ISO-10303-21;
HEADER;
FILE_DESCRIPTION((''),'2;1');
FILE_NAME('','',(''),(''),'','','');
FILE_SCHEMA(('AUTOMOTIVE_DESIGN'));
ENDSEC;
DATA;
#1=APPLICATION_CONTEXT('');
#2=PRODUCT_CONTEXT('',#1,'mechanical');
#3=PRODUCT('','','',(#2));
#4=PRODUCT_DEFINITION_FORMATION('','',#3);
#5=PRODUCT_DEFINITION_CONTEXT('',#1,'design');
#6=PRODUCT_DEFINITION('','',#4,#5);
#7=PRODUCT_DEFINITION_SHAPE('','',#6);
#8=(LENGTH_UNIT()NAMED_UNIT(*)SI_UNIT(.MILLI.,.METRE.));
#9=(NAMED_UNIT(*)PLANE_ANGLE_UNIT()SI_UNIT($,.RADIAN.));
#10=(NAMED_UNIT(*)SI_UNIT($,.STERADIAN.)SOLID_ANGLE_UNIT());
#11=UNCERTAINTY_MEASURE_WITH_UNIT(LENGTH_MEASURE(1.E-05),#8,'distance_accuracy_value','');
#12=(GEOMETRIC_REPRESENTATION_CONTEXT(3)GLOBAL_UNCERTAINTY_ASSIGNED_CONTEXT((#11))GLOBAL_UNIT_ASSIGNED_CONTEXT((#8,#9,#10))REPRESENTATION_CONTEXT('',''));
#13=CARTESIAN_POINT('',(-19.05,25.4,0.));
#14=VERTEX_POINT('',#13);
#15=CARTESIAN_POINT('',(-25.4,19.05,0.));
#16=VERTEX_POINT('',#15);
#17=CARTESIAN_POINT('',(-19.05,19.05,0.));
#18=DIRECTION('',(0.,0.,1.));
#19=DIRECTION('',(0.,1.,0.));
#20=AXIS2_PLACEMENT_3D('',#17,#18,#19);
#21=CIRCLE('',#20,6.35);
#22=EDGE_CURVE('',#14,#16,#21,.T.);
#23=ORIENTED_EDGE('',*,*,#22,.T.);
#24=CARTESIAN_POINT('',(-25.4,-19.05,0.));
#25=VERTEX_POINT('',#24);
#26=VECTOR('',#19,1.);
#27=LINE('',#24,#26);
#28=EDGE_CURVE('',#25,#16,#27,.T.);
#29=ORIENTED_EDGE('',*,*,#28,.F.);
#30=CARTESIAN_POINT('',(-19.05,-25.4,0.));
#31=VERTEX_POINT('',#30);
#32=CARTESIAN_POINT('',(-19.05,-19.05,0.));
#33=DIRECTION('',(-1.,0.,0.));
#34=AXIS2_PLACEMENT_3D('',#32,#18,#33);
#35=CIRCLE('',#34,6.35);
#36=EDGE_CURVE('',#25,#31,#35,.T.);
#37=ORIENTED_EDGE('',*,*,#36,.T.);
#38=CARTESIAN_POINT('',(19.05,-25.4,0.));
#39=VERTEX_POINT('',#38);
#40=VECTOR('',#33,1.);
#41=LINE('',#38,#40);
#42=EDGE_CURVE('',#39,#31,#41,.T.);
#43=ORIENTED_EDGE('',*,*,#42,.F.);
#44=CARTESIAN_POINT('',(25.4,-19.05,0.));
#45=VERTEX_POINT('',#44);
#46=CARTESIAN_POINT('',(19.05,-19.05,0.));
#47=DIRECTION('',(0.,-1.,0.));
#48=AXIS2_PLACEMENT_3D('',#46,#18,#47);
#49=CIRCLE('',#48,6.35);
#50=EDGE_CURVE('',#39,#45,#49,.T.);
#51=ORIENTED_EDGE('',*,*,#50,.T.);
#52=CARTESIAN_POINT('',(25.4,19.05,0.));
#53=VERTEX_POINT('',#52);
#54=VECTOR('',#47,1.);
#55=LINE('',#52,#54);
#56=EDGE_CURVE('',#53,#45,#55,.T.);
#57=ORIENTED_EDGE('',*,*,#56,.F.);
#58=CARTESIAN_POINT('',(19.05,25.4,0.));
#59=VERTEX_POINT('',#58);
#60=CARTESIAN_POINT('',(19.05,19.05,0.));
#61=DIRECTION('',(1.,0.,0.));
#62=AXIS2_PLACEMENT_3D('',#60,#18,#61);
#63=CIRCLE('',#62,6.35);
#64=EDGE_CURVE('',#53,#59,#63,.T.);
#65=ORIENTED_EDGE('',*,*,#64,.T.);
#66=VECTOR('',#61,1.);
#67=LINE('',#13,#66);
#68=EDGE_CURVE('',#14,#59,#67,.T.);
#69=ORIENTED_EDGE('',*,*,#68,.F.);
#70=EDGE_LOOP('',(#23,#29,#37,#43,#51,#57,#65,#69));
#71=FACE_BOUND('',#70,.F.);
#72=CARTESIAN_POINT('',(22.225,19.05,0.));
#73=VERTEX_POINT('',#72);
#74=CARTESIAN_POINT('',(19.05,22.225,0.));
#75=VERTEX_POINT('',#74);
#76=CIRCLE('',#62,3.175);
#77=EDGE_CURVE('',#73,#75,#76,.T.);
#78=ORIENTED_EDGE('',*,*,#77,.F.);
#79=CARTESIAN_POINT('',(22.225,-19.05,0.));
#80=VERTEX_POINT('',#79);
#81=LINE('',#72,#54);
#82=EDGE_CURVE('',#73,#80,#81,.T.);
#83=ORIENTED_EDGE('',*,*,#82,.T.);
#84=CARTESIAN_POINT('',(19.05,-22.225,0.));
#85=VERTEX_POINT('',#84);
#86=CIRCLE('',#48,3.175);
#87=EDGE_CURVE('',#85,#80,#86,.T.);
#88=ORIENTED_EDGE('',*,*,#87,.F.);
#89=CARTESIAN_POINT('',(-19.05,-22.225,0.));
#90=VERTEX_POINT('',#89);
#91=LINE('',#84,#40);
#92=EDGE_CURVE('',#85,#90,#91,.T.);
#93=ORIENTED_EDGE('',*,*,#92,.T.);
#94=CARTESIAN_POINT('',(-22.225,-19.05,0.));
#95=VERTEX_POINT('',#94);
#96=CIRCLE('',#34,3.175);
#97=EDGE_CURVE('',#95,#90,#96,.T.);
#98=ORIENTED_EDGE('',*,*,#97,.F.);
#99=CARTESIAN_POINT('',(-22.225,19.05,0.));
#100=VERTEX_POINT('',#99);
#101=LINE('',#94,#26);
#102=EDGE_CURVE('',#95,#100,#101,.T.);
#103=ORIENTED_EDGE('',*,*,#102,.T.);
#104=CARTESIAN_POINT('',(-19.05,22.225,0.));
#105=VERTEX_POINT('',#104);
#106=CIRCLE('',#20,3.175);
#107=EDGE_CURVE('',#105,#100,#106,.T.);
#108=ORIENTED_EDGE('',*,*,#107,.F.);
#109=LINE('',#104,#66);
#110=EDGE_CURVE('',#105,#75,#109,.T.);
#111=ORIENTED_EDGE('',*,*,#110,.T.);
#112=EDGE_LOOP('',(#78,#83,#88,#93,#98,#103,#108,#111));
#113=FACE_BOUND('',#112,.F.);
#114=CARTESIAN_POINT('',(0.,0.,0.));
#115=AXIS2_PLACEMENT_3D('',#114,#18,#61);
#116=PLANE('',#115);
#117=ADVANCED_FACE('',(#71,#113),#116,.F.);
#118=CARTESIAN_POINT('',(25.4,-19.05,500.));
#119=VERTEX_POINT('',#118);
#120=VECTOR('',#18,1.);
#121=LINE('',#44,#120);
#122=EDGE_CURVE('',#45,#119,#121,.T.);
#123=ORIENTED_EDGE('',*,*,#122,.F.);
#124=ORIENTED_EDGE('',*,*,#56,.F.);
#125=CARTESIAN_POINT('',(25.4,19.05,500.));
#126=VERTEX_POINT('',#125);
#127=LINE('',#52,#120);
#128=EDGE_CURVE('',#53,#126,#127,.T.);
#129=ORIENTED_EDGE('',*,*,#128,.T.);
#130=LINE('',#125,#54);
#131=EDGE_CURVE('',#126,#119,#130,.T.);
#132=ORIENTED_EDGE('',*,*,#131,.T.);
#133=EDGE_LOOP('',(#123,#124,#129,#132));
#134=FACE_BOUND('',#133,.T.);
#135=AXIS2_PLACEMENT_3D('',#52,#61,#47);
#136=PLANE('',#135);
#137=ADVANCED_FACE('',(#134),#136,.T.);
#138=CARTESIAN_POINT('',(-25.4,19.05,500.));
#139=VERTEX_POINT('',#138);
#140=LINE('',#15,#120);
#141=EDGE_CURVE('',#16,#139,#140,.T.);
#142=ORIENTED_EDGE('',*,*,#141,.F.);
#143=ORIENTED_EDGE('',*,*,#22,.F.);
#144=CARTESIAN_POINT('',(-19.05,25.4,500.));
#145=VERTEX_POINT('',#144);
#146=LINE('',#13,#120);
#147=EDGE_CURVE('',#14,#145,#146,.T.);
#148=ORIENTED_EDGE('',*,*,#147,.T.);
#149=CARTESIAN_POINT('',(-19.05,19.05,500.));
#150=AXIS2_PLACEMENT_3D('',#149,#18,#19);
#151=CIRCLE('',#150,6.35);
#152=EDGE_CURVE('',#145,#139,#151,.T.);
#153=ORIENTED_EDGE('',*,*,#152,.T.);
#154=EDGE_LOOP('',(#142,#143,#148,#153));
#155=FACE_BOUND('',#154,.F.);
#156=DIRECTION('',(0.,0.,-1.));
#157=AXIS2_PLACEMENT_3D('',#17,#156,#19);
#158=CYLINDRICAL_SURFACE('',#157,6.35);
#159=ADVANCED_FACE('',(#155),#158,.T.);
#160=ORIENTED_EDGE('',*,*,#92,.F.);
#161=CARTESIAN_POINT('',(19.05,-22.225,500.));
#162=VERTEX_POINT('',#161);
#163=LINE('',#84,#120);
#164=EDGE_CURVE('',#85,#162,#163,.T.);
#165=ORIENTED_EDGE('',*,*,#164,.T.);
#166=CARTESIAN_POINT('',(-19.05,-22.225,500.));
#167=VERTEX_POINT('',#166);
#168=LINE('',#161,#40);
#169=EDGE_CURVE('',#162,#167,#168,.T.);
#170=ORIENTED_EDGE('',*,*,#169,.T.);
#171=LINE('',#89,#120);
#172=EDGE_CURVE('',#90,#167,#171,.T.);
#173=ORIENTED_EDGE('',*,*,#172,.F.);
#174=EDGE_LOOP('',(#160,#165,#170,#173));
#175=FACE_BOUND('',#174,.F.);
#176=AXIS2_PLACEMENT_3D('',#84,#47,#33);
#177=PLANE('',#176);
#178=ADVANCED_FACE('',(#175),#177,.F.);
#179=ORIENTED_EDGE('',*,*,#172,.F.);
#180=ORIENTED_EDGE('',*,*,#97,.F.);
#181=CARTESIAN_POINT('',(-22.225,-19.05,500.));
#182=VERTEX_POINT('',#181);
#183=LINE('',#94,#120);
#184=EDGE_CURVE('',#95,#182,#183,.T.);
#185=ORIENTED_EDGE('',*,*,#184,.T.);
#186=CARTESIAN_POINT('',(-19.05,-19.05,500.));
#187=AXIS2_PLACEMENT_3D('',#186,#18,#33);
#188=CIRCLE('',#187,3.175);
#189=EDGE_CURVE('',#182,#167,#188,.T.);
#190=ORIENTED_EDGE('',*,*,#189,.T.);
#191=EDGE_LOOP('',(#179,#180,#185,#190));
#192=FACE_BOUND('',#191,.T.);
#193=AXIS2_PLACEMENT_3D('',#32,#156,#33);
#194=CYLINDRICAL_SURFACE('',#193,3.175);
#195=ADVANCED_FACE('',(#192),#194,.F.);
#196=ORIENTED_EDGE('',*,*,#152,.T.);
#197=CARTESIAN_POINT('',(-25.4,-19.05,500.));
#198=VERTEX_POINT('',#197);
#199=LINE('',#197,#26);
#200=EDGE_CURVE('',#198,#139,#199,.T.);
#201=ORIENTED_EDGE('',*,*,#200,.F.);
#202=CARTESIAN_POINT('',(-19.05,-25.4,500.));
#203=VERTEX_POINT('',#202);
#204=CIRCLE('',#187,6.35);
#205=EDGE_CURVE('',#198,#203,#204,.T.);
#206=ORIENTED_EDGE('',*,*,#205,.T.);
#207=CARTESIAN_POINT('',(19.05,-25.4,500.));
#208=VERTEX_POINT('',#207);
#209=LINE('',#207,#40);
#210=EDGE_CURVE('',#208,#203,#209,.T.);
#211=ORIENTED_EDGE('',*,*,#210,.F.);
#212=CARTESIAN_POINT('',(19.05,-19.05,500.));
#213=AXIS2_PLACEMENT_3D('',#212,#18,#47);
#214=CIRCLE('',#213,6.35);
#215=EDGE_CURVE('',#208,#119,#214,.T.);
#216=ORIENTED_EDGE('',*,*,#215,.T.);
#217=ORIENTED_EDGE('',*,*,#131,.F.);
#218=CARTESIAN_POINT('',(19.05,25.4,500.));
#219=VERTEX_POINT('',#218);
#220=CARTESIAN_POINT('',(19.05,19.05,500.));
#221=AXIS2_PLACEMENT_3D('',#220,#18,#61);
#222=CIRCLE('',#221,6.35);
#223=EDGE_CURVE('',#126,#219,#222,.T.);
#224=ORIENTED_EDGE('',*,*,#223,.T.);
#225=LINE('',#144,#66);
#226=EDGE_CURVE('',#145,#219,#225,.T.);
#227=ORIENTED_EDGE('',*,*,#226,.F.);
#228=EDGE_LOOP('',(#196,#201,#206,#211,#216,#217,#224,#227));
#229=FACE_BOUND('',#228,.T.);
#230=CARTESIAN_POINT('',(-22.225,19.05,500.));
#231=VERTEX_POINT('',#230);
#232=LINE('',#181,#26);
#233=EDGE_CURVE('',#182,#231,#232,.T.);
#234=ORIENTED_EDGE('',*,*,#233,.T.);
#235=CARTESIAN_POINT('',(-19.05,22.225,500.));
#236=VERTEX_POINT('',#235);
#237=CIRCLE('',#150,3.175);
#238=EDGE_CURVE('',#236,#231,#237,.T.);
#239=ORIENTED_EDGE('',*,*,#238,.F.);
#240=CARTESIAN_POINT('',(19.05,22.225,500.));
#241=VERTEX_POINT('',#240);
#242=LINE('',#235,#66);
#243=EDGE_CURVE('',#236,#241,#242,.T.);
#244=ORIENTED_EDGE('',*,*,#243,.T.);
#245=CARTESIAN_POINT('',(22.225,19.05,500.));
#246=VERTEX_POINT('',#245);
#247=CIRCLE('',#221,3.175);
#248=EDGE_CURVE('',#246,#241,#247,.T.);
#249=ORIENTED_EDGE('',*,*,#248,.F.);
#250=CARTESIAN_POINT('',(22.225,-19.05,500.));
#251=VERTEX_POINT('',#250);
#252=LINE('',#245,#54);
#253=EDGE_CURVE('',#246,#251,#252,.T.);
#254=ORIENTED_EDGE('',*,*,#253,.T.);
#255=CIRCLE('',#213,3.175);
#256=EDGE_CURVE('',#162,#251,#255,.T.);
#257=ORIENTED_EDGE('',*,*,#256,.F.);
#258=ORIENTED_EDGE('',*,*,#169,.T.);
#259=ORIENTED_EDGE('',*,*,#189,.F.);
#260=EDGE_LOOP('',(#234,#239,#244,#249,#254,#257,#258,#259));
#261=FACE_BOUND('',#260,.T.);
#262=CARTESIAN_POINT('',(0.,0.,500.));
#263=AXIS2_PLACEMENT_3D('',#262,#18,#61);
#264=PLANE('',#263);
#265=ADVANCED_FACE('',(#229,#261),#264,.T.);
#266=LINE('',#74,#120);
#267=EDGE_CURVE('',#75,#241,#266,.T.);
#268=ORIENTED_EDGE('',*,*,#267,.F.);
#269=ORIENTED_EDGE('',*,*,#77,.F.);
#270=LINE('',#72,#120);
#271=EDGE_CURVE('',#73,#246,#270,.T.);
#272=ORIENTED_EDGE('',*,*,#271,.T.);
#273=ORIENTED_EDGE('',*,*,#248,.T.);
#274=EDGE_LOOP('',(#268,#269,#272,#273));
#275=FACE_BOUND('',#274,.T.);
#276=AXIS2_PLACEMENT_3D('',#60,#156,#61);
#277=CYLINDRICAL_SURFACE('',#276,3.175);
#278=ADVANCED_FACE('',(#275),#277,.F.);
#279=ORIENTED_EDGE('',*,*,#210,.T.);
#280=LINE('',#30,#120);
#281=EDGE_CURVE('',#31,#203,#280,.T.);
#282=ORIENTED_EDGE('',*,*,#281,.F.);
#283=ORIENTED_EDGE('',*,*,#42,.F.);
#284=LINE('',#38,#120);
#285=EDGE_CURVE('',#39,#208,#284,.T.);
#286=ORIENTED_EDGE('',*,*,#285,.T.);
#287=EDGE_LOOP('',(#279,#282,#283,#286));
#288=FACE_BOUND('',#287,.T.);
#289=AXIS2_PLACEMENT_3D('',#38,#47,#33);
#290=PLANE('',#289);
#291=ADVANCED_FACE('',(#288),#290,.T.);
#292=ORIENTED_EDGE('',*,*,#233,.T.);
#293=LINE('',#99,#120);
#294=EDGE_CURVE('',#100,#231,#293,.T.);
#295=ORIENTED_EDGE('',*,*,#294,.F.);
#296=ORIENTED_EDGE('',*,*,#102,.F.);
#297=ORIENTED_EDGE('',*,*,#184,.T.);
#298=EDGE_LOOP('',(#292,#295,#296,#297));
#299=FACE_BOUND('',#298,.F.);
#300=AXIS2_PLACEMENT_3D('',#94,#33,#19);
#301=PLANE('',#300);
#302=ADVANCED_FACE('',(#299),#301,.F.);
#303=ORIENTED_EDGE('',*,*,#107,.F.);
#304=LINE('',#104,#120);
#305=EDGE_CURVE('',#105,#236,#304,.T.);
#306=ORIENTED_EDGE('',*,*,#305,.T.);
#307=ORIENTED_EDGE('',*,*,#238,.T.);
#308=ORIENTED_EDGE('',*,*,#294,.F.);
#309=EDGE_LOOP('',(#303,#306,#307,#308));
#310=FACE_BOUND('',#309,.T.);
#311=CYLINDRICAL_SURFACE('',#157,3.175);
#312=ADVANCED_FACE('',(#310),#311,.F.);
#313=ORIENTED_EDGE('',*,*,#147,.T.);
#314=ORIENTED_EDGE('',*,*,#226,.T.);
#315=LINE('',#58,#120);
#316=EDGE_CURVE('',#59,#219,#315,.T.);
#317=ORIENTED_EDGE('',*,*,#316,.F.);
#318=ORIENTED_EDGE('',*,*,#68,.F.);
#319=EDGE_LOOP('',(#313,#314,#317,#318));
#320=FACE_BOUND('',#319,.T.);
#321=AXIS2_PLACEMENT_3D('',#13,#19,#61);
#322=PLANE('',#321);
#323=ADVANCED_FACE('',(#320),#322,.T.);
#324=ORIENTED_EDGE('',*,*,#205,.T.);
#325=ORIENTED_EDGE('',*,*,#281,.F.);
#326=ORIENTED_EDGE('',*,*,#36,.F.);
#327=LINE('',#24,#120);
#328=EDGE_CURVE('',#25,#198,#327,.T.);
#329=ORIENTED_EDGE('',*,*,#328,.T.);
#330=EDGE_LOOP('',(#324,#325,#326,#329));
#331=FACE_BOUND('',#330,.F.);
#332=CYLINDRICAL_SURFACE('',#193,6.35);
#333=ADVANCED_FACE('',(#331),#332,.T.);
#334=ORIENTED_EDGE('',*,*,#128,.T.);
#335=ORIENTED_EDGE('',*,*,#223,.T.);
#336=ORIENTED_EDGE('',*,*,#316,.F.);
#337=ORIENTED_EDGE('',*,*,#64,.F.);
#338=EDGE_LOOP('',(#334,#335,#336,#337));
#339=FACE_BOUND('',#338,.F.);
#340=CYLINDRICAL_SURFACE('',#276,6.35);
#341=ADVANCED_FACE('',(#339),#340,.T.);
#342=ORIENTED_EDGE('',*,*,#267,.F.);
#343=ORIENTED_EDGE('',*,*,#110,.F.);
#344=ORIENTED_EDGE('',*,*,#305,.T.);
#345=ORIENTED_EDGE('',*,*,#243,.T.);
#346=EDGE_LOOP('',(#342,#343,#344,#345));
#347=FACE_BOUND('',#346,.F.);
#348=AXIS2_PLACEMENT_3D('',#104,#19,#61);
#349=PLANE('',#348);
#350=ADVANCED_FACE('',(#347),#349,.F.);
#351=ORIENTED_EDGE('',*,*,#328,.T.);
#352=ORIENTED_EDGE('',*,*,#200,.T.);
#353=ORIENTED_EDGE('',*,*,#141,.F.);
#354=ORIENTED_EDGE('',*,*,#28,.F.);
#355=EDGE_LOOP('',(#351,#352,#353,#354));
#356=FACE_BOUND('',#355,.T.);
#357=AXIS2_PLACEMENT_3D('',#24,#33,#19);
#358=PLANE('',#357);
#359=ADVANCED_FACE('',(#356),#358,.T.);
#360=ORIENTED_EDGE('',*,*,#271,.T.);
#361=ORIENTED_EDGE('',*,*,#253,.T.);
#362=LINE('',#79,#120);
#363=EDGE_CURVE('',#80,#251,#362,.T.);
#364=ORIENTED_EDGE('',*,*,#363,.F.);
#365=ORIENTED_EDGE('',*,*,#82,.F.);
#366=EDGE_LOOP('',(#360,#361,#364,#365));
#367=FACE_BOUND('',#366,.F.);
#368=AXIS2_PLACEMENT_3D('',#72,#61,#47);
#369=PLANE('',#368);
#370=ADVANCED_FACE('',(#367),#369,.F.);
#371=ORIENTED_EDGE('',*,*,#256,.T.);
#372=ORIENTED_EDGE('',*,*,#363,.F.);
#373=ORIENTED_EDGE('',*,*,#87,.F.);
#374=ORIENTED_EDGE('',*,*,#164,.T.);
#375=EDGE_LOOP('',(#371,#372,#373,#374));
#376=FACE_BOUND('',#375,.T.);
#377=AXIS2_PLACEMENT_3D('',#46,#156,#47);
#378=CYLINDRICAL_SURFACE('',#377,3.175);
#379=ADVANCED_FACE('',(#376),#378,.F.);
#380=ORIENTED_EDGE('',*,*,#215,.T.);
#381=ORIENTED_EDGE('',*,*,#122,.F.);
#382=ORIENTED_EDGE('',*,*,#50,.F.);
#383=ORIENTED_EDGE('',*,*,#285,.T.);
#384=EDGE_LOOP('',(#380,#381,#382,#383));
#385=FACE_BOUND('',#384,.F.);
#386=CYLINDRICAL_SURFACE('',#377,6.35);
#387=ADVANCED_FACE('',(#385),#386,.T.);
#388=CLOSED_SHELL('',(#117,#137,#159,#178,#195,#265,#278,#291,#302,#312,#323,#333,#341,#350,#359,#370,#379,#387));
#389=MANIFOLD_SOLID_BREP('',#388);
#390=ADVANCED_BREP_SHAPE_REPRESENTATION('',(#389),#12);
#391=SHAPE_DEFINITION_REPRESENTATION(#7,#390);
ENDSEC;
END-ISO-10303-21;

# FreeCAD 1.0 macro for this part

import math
import FreeCAD as App
import Part
import Sketcher

V = App.Vector
Q = App.Units.Quantity

doc = App.newDocument("Part")
body = doc.addObject("PartDesign::Body", "Body")

# Sketch on XY plane
sketch1 = body.newObject("Sketcher::SketchObject", "Sketch")
sketch1.AttachmentSupport = (doc.getObject("XY_Plane"), [""])
sketch1.MapMode = "FlatFace"
sketch1.addGeometry(Part.LineSegment(V(-25.4, 19.1, 0), V(-25.4, -19.1, 0)), False)
sketch1.addGeometry(Part.ArcOfCircle(Part.Circle(V(-19.1, -19.1, 0), V(0, 0, 1), 6.3), math.radians(180), math.radians(270)), False)
sketch1.addGeometry(Part.LineSegment(V(-19.1, -25.4, 0), V(19.1, -25.4, 0)), False)
sketch1.addGeometry(Part.ArcOfCircle(Part.Circle(V(19.1, -19.1, 0), V(0, 0, 1), 6.3), math.radians(-90), math.radians(0)), False)
sketch1.addGeometry(Part.LineSegment(V(25.4, -19.1, 0), V(25.4, 19.1, 0)), False)
sketch1.addGeometry(Part.ArcOfCircle(Part.Circle(V(19.1, 19.1, 0), V(0, 0, 1), 6.3), math.radians(0), math.radians(90)), False)
sketch1.addGeometry(Part.LineSegment(V(19.1, 25.4, 0), V(-19.1, 25.4, 0)), False)
sketch1.addGeometry(Part.ArcOfCircle(Part.Circle(V(-19.1, 19.1, 0), V(0, 0, 1), 6.3), math.radians(90), math.radians(180)), False)
sketch1.addGeometry(Part.ArcOfCircle(Part.Circle(V(-19.1, 19.1, 0), V(0, 0, 1), 3.2), math.radians(90), math.radians(180)), False)
sketch1.addGeometry(Part.LineSegment(V(-19.1, 22.2, 0), V(19.1, 22.2, 0)), False)
sketch1.addGeometry(Part.ArcOfCircle(Part.Circle(V(19.1, 19.1, 0), V(0, 0, 1), 3.2), math.radians(0), math.radians(90)), False)
sketch1.addGeometry(Part.LineSegment(V(22.2, 19.1, 0), V(22.2, -19.1, 0)), False)
sketch1.addGeometry(Part.ArcOfCircle(Part.Circle(V(19.1, -19.1, 0), V(0, 0, 1), 3.2), math.radians(-90), math.radians(0)), False)
sketch1.addGeometry(Part.LineSegment(V(19.1, -22.2, 0), V(-19.1, -22.2, 0)), False)
sketch1.addGeometry(Part.ArcOfCircle(Part.Circle(V(-19.1, -19.1, 0), V(0, 0, 1), 3.2), math.radians(180), math.radians(270)), False)
sketch1.addGeometry(Part.LineSegment(V(-22.2, -19.1, 0), V(-22.2, 19.1, 0)), False)
sketch1.addConstraint(Sketcher.Constraint("Tangent", 0, 2, 1, 1))
sketch1.addConstraint(Sketcher.Constraint("Tangent", 1, 2, 2, 1))
sketch1.addConstraint(Sketcher.Constraint("Tangent", 2, 2, 3, 1))
sketch1.addConstraint(Sketcher.Constraint("Tangent", 3, 2, 4, 1))
sketch1.addConstraint(Sketcher.Constraint("Tangent", 4, 2, 5, 1))
sketch1.addConstraint(Sketcher.Constraint("Tangent", 5, 2, 6, 1))
sketch1.addConstraint(Sketcher.Constraint("Tangent", 6, 2, 7, 1))
sketch1.addConstraint(Sketcher.Constraint("Tangent", 7, 2, 0, 1))
sketch1.addConstraint(Sketcher.Constraint("Tangent", 8, 1, 9, 1))
sketch1.addConstraint(Sketcher.Constraint("Tangent", 9, 2, 10, 2))
sketch1.addConstraint(Sketcher.Constraint("Tangent", 10, 1, 11, 1))
sketch1.addConstraint(Sketcher.Constraint("Tangent", 11, 2, 12, 2))
sketch1.addConstraint(Sketcher.Constraint("Tangent", 12, 1, 13, 1))
sketch1.addConstraint(Sketcher.Constraint("Tangent", 13, 2, 14, 2))
sketch1.addConstraint(Sketcher.Constraint("Tangent", 14, 1, 15, 1))
sketch1.addConstraint(Sketcher.Constraint("Tangent", 15, 2, 8, 2))
sketch1.addConstraint(Sketcher.Constraint("Vertical", 0))
sketch1.addConstraint(Sketcher.Constraint("Horizontal", 2))
sketch1.addConstraint(Sketcher.Constraint("Vertical", 4))
sketch1.addConstraint(Sketcher.Constraint("Horizontal", 6))
sketch1.addConstraint(Sketcher.Constraint("Horizontal", 9))
sketch1.addConstraint(Sketcher.Constraint("Vertical", 11))
sketch1.addConstraint(Sketcher.Constraint("Horizontal", 13))
sketch1.addConstraint(Sketcher.Constraint("Vertical", 15))
sketch1.addConstraint(Sketcher.Constraint("Coincident", 8, 3, 7, 3))
sketch1.addConstraint(Sketcher.Constraint("Coincident", 10, 3, 5, 3))
sketch1.addConstraint(Sketcher.Constraint("Coincident", 12, 3, 3, 3))
sketch1.addConstraint(Sketcher.Constraint("Equal", 1, 3))
sketch1.addConstraint(Sketcher.Constraint("Equal", 3, 5))
sketch1.addConstraint(Sketcher.Constraint("Equal", 5, 7))
sketch1.addConstraint(Sketcher.Constraint("Equal", 12, 14))
sketch1.addConstraint(Sketcher.Constraint("Symmetric", 1, 3, 5, 3, -1, 1))
sketch1.addConstraint(Sketcher.Constraint("Equal", 13, 0))
sketch1.addConstraint(Sketcher.Constraint("Radius", 1, Q("0.25 in")))
sketch1.addConstraint(Sketcher.Constraint("DistanceX", 0, 2, -1, 1, Q("1 in")))
sketch1.addConstraint(Sketcher.Constraint("Radius", 8, Q("0.125 in")))
pad1 = body.newObject("PartDesign::Pad", "Pad")
pad1.Profile = sketch1
pad1.Length = 500

doc.recompute()
